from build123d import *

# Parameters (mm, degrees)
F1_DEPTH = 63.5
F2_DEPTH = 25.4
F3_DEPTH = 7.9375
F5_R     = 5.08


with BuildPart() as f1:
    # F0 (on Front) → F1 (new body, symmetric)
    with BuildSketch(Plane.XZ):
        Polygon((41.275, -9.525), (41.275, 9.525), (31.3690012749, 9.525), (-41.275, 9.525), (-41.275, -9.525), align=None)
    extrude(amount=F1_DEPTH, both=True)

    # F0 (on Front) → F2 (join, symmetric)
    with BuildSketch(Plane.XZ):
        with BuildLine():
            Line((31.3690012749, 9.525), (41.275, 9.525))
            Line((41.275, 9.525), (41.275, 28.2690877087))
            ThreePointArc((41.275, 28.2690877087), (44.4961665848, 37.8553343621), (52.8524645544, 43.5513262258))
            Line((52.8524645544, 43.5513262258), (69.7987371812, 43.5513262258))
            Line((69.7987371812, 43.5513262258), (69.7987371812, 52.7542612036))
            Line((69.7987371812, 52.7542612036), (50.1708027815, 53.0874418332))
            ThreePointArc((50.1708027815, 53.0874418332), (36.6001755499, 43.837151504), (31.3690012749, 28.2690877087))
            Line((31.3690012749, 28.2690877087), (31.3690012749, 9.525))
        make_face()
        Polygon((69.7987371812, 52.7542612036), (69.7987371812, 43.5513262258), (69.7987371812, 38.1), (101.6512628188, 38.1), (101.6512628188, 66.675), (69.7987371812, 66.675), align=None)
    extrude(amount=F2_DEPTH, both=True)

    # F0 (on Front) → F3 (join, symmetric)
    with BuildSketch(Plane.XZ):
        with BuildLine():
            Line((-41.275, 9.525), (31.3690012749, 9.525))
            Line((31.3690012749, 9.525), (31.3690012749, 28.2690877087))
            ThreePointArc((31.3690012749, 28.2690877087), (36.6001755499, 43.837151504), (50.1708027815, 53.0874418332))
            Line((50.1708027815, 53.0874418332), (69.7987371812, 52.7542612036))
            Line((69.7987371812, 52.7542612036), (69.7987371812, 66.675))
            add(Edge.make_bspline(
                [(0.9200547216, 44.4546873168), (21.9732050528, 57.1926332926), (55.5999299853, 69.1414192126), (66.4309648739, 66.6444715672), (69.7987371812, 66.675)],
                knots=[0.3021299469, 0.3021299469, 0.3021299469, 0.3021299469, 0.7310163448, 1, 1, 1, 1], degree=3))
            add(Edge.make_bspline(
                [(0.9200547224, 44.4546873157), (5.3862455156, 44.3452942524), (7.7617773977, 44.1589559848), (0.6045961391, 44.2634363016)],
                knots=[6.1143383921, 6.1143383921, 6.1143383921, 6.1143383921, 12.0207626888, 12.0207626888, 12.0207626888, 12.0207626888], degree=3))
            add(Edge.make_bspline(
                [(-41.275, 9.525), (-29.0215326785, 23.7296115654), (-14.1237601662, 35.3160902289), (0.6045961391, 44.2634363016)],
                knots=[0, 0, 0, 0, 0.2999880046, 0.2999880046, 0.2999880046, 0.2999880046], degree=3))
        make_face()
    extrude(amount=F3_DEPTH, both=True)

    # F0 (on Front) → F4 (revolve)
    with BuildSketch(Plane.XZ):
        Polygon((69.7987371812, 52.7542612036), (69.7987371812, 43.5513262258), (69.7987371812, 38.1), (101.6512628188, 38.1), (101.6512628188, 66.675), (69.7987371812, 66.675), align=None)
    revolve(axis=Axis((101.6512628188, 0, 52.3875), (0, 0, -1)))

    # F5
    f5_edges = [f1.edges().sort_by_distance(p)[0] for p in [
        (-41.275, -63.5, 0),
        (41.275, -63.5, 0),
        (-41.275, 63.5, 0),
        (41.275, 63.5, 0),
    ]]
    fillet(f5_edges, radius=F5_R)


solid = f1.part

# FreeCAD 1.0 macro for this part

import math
import FreeCAD as App
import Part
import Sketcher
from FreeCAD import Vector
Q = App.Units.Quantity


def edges_at(feature, points):
    """Names of the edges that pass closest to the given points."""
    edges = feature.Shape.Edges
    near = lambda p: min(range(len(edges)), key=lambda i: edges[i].distToShape(Part.Vertex(*p))[0])
    return sorted({f"Edge{near(p) + 1}" for p in points})

doc = App.newDocument("Part")
body = doc.addObject("PartDesign::Body", "Body")

# Sketch on XZ plane
sketch1 = body.newObject("Sketcher::SketchObject", "Sketch")
sketch1.AttachmentSupport = (doc.getObject("XZ_Plane"), [""])
sketch1.MapMode = "FlatFace"
sketch1.addGeometry([
    Part.LineSegment(Vector(41, -10, 0), Vector(41, 10, 0)),
    Part.LineSegment(Vector(41, 10, 0), Vector(-41, 10, 0)),
    Part.LineSegment(Vector(-41, 10, 0), Vector(-41, -10, 0)),
    Part.LineSegment(Vector(-41, -10, 0), Vector(41, -10, 0)),
], False)
sketch1.addConstraint([
    Sketcher.Constraint("Coincident", 0, 2, 1, 1),
    Sketcher.Constraint("Coincident", 1, 2, 2, 1),
    Sketcher.Constraint("Coincident", 2, 2, 3, 1),
    Sketcher.Constraint("Coincident", 3, 2, 0, 1),
    Sketcher.Constraint("Vertical", 0),
    Sketcher.Constraint("Horizontal", 1),
    Sketcher.Constraint("Vertical", 2),
    Sketcher.Constraint("Horizontal", 3),
    Sketcher.Constraint("Symmetric", 0, 2, 2, 2, -1, 1),
    Sketcher.Constraint("DistanceX", 1, 2, 1, 1, Q("3.25 in")),
    Sketcher.Constraint("DistanceY", 0, 1, 0, 2, Q("0.75 in")),
])
pad1 = body.newObject("PartDesign::Pad", "Pad")
pad1.Profile = sketch1
pad1.Length = Q("5 in")
pad1.Midplane = True

# Sketch on XZ plane
sketch2 = body.newObject("Sketcher::SketchObject", "Sketch001")
sketch2.AttachmentSupport = (doc.getObject("XZ_Plane"), [""])
sketch2.MapMode = "FlatFace"
sketch2.addGeometry([
    Part.LineSegment(Vector(31, 10, 0), Vector(41, 10, 0)),  # 0
    Part.LineSegment(Vector(41, 10, 0), Vector(41, 28, 0)),  # 1
    Part.ArcOfCircle(Part.Circle(Vector(57, 28, 0), Vector(0, 0, 1), 16), math.radians(106), math.radians(180)),  # 2
    Part.LineSegment(Vector(53, 44, 0), Vector(70, 44, 0)),  # 3
    Part.LineSegment(Vector(70, 44, 0), Vector(70, 38, 0)),  # 4
    Part.LineSegment(Vector(70, 38, 0), Vector(102, 38, 0)),  # 5
    Part.LineSegment(Vector(102, 38, 0), Vector(102, 67, 0)),  # 6
    Part.LineSegment(Vector(102, 67, 0), Vector(70, 67, 0)),  # 7
    Part.LineSegment(Vector(70, 67, 0), Vector(70, 53, 0)),  # 8
    Part.LineSegment(Vector(70, 53, 0), Vector(50, 53, 0)),  # 9
    Part.ArcOfCircle(Part.Circle(Vector(57, 28, 0), Vector(0, 0, 1), 26), math.radians(106), math.radians(180)),  # 10
    Part.LineSegment(Vector(31, 28, 0), Vector(31, 10, 0)),  # 11
], False)
sketch2.addConstraint([
    Sketcher.Constraint("Coincident", 0, 2, 1, 1),
    Sketcher.Constraint("Tangent", 1, 2, 2, 2),
    Sketcher.Constraint("Coincident", 2, 1, 3, 1),
    Sketcher.Constraint("Coincident", 3, 2, 4, 1),
    Sketcher.Constraint("Coincident", 4, 2, 5, 1),
    Sketcher.Constraint("Coincident", 5, 2, 6, 1),
    Sketcher.Constraint("Coincident", 6, 2, 7, 1),
    Sketcher.Constraint("Coincident", 7, 2, 8, 1),
    Sketcher.Constraint("Coincident", 8, 2, 9, 1),
    Sketcher.Constraint("Coincident", 9, 2, 10, 1),
    Sketcher.Constraint("Tangent", 10, 2, 11, 1),
    Sketcher.Constraint("Coincident", 11, 2, 0, 1),
    Sketcher.Constraint("Horizontal", 0),
    Sketcher.Constraint("Vertical", 1),
    Sketcher.Constraint("Horizontal", 3),
    Sketcher.Constraint("Vertical", 4),
    Sketcher.Constraint("Horizontal", 5),
    Sketcher.Constraint("Vertical", 6),
    Sketcher.Constraint("Horizontal", 7),
    Sketcher.Constraint("Vertical", 8),
    Sketcher.Constraint("Vertical", 11),
    Sketcher.Constraint("Coincident", 10, 3, 2, 3),
    Sketcher.Constraint("Vertical", 4, 2, 7, 2),
    Sketcher.Constraint("Radius", 2, Q("0.625 in")),
    Sketcher.Constraint("Radius", 10, Q("1.0149999 in")),
    Sketcher.Constraint("DistanceY", -1, 1, 4, 2, Q("1.5 in")),
    Sketcher.Constraint("DistanceY", 6, 1, 6, 2, Q("1.125 in")),
    Sketcher.Constraint("DistanceX", -1, 1, 2, 3, Q("2.25 in")),
    Sketcher.Constraint("DistanceY", -1, 1, 0, 2, Q("0.375 in")),
    Sketcher.Constraint("DistanceY", 8, 2, 8, 1, 13.920739),
    Sketcher.Constraint("DistanceX", 2, 1, 5, 2, 48.798798),
    Sketcher.Constraint("DistanceX", 3, 1, 3, 2, 16.946273),
    Sketcher.Constraint("DistanceY", 1, 1, 1, 2, 18.744088),
    Sketcher.Constraint("DistanceY", 4, 2, 4, 1, 5.451326),
    Sketcher.Constraint("DistanceY", -1, 1, 9, 2, 53.087442),
])
pad2 = body.newObject("PartDesign::Pad", "Pad001")
pad2.Profile = sketch2
pad2.Length = Q("2 in")
pad2.Midplane = True

# Sketch on XZ plane
sketch3 = body.newObject("Sketcher::SketchObject", "Sketch002")
sketch3.AttachmentSupport = (doc.getObject("XZ_Plane"), [""])
sketch3.MapMode = "FlatFace"
sketch3.addGeometry([
    Part.LineSegment(Vector(-41.275, 9.525, 0), Vector(31.369001, 9.525, 0)),  # 0
    Part.LineSegment(Vector(31.369001, 9.525, 0), Vector(31.369001, 28.269088, 0)),  # 1
    Part.ArcOfCircle(Part.Circle(Vector(57.15, 28.269088, 0), Vector(0, 0, 1), 25.780999), math.radians(105.706574), math.radians(180)),  # 2
    Part.LineSegment(Vector(50.170803, 53.087442, 0), Vector(69.798737, 52.754261, 0)),  # 3
    Part.LineSegment(Vector(69.798737, 52.754261, 0), Vector(69.798737, 66.675, 0)),  # 4
    Part.BSplineCurve([Vector(0.920055, 44.454687, 0), Vector(21.973205, 57.192633, 0), Vector(55.59993, 69.141419, 0), Vector(66.430965, 66.644472, 0), Vector(69.798737, 66.675, 0)], [4, 1, 4], [0.302129947, 0.731016345, 1], False, 3, [1, 1, 1, 1, 1], False),  # 5
    Part.BSplineCurve([Vector(0.920055, 44.454687, 0), Vector(5.386246, 44.345294, 0), Vector(7.761777, 44.158956, 0), Vector(0.604596, 44.263436, 0)], [4, 4], [6.114338392, 12.020762689], False, 3, [1, 1, 1, 1], False),  # 6
    Part.BSplineCurve([Vector(-41.275, 9.525, 0), Vector(-29.021533, 23.729612, 0), Vector(-14.12376, 35.31609, 0), Vector(0.604596, 44.263436, 0)], [4, 4], [0, 0.299988005], False, 3, [1, 1, 1, 1], False),  # 7
], False)
sketch3.addConstraint([
    Sketcher.Constraint("Block", 5),
    Sketcher.Constraint("Block", 6),
    Sketcher.Constraint("Block", 7),
    Sketcher.Constraint("Coincident", 0, 2, 1, 1),
    Sketcher.Constraint("Tangent", 1, 2, 2, 2),
    Sketcher.Constraint("Coincident", 2, 1, 3, 1),
    Sketcher.Constraint("Coincident", 3, 2, 4, 1),
    Sketcher.Constraint("Coincident", 4, 2, 5, 2),
    Sketcher.Constraint("Coincident", 7, 1, 0, 1),
    Sketcher.Constraint("Horizontal", 0),
    Sketcher.Constraint("Vertical", 1),
    Sketcher.Constraint("Vertical", 4),
    Sketcher.Constraint("Radius", 2, Q("1.0149999 in")),
    Sketcher.Constraint("DistanceX", 0, 1, 0, 2, Q("2.8600001 in")),
    Sketcher.Constraint("DistanceY", 4, 1, 4, 2, 13.920739),
    Sketcher.Constraint("DistanceX", 1, 2, 2, 1, 18.801802),
    Sketcher.Constraint("DistanceY", 1, 1, 1, 2, 18.744088),
])
pad3 = body.newObject("PartDesign::Pad", "Pad002")
pad3.Profile = sketch3
pad3.Length = Q("0.625 in")
pad3.Midplane = True

# Sketch on XZ plane
sketch4 = body.newObject("Sketcher::SketchObject", "Sketch003")
sketch4.AttachmentSupport = (doc.getObject("XZ_Plane"), [""])
sketch4.MapMode = "FlatFace"
sketch4.addGeometry([
    Part.LineSegment(Vector(70, 38, 0), Vector(102, 38, 0)),
    Part.LineSegment(Vector(102, 38, 0), Vector(102, 67, 0)),
    Part.LineSegment(Vector(102, 67, 0), Vector(70, 67, 0)),
    Part.LineSegment(Vector(70, 67, 0), Vector(70, 38, 0)),
], False)
sketch4.addGeometry(Part.LineSegment(Vector(102, 67, 0), Vector(102, 38, 0)), True)  # axis
sketch4.addConstraint([
    Sketcher.Constraint("Coincident", 0, 2, 1, 1),
    Sketcher.Constraint("Coincident", 1, 2, 2, 1),
    Sketcher.Constraint("Coincident", 2, 2, 3, 1),
    Sketcher.Constraint("Coincident", 3, 2, 0, 1),
    Sketcher.Constraint("Horizontal", 0),
    Sketcher.Constraint("Vertical", 1),
    Sketcher.Constraint("Horizontal", 2),
    Sketcher.Constraint("Vertical", 3),
    Sketcher.Constraint("Vertical", 4),
    Sketcher.Constraint("Coincident", 4, 1, 1, 2),
    Sketcher.Constraint("Horizontal", 3, 2, 4, 2),
    Sketcher.Constraint("DistanceY", -1, 1, 0, 2, Q("1.5 in")),
    Sketcher.Constraint("DistanceY", 1, 1, 1, 2, Q("1.125 in")),
    Sketcher.Constraint("DistanceX", 0, 1, 0, 2, 31.852526),
    Sketcher.Constraint("DistanceX", -1, 1, 0, 2, 101.651263),
])
revolution = body.newObject("PartDesign::Revolution", "Revolution")
revolution.Profile = sketch4
revolution.ReferenceAxis = (sketch4, ["Axis0"])
revolution.Angle = 360
doc.recompute()

fillet = body.newObject("PartDesign::Fillet", "Fillet")
fillet.Base = (revolution, edges_at(revolution, [
    (-41.275, -63.5, 0),
    (41.275, -63.5, 0),
    (-41.275, 63.5, 0),
    (41.275, 63.5, 0),
]))
fillet.Radius = Q("0.2 in")

doc.recompute()
